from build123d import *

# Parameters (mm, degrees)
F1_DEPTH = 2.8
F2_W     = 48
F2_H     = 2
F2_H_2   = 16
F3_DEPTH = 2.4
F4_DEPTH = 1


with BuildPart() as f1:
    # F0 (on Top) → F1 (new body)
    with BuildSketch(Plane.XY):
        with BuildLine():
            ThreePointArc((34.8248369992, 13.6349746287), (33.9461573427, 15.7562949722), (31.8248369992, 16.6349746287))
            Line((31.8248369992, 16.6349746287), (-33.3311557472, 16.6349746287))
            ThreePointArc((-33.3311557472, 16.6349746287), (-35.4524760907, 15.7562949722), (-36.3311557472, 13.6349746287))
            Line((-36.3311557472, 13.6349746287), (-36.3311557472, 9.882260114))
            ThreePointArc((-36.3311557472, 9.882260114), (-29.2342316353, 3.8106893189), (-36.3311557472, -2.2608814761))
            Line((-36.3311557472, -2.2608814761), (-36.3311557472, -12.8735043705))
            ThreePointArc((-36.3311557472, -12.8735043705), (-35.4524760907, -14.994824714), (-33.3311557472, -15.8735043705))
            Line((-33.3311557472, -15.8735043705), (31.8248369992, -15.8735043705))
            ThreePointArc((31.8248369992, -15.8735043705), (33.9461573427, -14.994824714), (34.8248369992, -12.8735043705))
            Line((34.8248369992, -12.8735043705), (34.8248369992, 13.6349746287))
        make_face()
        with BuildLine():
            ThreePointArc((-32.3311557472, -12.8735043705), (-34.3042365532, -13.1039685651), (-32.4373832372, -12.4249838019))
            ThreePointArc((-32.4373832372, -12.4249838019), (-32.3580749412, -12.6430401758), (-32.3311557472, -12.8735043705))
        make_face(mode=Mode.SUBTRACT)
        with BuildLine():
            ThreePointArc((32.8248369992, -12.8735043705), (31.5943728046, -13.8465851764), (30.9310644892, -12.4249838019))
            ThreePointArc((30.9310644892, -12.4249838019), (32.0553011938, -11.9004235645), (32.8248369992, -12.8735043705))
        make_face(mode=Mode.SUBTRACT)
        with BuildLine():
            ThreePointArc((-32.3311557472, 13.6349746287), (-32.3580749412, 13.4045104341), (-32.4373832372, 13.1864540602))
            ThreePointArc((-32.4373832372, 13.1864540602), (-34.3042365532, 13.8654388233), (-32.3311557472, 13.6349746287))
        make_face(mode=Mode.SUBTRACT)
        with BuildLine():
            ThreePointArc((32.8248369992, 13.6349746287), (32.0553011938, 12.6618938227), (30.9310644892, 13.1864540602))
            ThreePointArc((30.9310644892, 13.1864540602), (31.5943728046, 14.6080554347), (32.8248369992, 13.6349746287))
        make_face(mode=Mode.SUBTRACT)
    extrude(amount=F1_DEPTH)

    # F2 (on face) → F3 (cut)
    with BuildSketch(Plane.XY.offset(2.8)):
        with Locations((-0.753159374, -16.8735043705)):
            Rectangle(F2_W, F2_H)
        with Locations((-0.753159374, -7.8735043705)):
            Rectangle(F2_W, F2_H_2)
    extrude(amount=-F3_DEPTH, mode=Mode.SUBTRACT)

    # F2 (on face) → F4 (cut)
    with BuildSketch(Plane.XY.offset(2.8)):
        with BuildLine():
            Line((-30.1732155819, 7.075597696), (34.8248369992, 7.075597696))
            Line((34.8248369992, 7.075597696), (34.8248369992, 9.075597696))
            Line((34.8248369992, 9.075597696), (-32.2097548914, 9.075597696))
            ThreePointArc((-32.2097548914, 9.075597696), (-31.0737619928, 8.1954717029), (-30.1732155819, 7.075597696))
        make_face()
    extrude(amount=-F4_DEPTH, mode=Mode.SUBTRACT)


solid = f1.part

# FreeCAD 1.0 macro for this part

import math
import FreeCAD as App
import Part
import Sketcher
Q = App.Units.Quantity


def add_polygon(sketch, points):
    """Adds a closed chain of lines whose ends are joined by coincident constraints."""
    first, n = sketch.GeometryCount, len(points)
    for a, b in zip(points, points[1:] + points[:1]):
        sketch.addGeometry(Part.LineSegment(App.Vector(*a, 0), App.Vector(*b, 0)), False)
    for i in range(n):
        sketch.addConstraint(Sketcher.Constraint("Coincident", first + i, 2, first + (i + 1) % n, 1))

doc = App.newDocument("Part")
body = doc.addObject("PartDesign::Body", "Body")

sketch1 = body.newObject("Sketcher::SketchObject", "Sketch")
sketch1.AttachmentSupport = (doc.getObject("XY_Plane"), [""])
sketch1.MapMode = "FlatFace"
sketch1.addGeometry([
    Part.ArcOfCircle(Part.Circle(App.Vector(31.82, 13.63, 0), App.Vector(0, 0, 1), 3), math.radians(0), math.radians(90)),
    Part.LineSegment(App.Vector(31.82, 16.63, 0), App.Vector(-33.33, 16.63, 0)),
    Part.ArcOfCircle(Part.Circle(App.Vector(-33.33, 13.63, 0), App.Vector(0, 0, 1), 3), math.radians(90), math.radians(180)),
    Part.LineSegment(App.Vector(-36.33, 13.63, 0), App.Vector(-36.33, 9.88, 0)),
    Part.ArcOfCircle(Part.Circle(App.Vector(-35.38, 3.81, 0), App.Vector(0, 0, 1), 6.15), math.radians(-99), math.radians(99)),
    Part.LineSegment(App.Vector(-36.33, -2.26, 0), App.Vector(-36.33, -12.87, 0)),
    Part.ArcOfCircle(Part.Circle(App.Vector(-33.33, -12.87, 0), App.Vector(0, 0, 1), 3), math.radians(180), math.radians(270)),
    Part.LineSegment(App.Vector(-33.33, -15.87, 0), App.Vector(31.82, -15.87, 0)),
    Part.ArcOfCircle(Part.Circle(App.Vector(31.82, -12.87, 0), App.Vector(0, 0, 1), 3), math.radians(-90), math.radians(0)),
    Part.LineSegment(App.Vector(34.82, -12.87, 0), App.Vector(34.82, 13.63, 0)),
    Part.ArcOfCircle(Part.Circle(App.Vector(-33.33, -12.87, 0), App.Vector(0, 0, 1), 1), math.radians(0), math.radians(27)),
    Part.ArcOfCircle(Part.Circle(App.Vector(-33.33, -12.87, 0), App.Vector(0, 0, 1), 1), math.radians(27), math.radians(360)),
    Part.ArcOfCircle(Part.Circle(App.Vector(31.82, -12.87, 0), App.Vector(0, 0, 1), 1), math.radians(0), math.radians(153)),
    Part.ArcOfCircle(Part.Circle(App.Vector(31.82, -12.87, 0), App.Vector(0, 0, 1), 1), math.radians(153), math.radians(360)),
    Part.ArcOfCircle(Part.Circle(App.Vector(-33.33, 13.63, 0), App.Vector(0, 0, 1), 1), math.radians(0), math.radians(333)),
    Part.ArcOfCircle(Part.Circle(App.Vector(-33.33, 13.63, 0), App.Vector(0, 0, 1), 1), math.radians(-27), math.radians(0)),
    Part.ArcOfCircle(Part.Circle(App.Vector(31.82, 13.63, 0), App.Vector(0, 0, 1), 1), math.radians(0), math.radians(207)),
    Part.ArcOfCircle(Part.Circle(App.Vector(31.82, 13.63, 0), App.Vector(0, 0, 1), 1), math.radians(-153), math.radians(0)),
], False)
sketch1.addConstraint([
    Sketcher.Constraint("Tangent", 0, 2, 1, 1),
    Sketcher.Constraint("Tangent", 1, 2, 2, 1),
    Sketcher.Constraint("Tangent", 2, 2, 3, 1),
    Sketcher.Constraint("Coincident", 3, 2, 4, 2),
    Sketcher.Constraint("Coincident", 4, 1, 5, 1),
    Sketcher.Constraint("Tangent", 5, 2, 6, 1),
    Sketcher.Constraint("Tangent", 6, 2, 7, 1),
    Sketcher.Constraint("Tangent", 7, 2, 8, 1),
    Sketcher.Constraint("Tangent", 8, 2, 9, 1),
    Sketcher.Constraint("Tangent", 9, 2, 0, 1),
    Sketcher.Constraint("Tangent", 10, 1, 11, 2),
    Sketcher.Constraint("Coincident", 11, 1, 10, 2),
    Sketcher.Constraint("Tangent", 12, 1, 13, 2),
    Sketcher.Constraint("Coincident", 13, 1, 12, 2),
    Sketcher.Constraint("Tangent", 14, 1, 15, 2),
    Sketcher.Constraint("Coincident", 15, 1, 14, 2),
    Sketcher.Constraint("Tangent", 16, 1, 17, 2),
    Sketcher.Constraint("Coincident", 17, 1, 16, 2),
    Sketcher.Constraint("Horizontal", 1),
    Sketcher.Constraint("Vertical", 3),
    Sketcher.Constraint("Vertical", 5),
    Sketcher.Constraint("Horizontal", 7),
    Sketcher.Constraint("Vertical", 9),
    Sketcher.Constraint("Coincident", 10, 3, 6, 3),
    Sketcher.Constraint("Coincident", 12, 3, 8, 3),
    Sketcher.Constraint("Coincident", 14, 3, 2, 3),
    Sketcher.Constraint("Coincident", 16, 3, 0, 3),
    Sketcher.Constraint("Equal", 0, 2),
    Sketcher.Constraint("Equal", 2, 6),
    Sketcher.Constraint("Equal", 6, 8),
    Sketcher.Constraint("Equal", 11, 12),
    Sketcher.Constraint("Equal", 13, 14),
    Sketcher.Constraint("Equal", 15, 16),
    Sketcher.Constraint("Horizontal", 8, 2, 10, 1),
    Sketcher.Constraint("Horizontal", 10, 1, 12, 1),
    Sketcher.Constraint("Horizontal", 11, 1, 13, 1),
    Sketcher.Constraint("Horizontal", 9, 2, 14, 1),
    Sketcher.Constraint("Horizontal", 14, 1, 16, 1),
    Sketcher.Constraint("Horizontal", 15, 1, 17, 1),
    Sketcher.Constraint("Vertical", 2, 3, 6, 3),
    Sketcher.Constraint("Vertical", 11, 1, 15, 1),
    Sketcher.Constraint("Radius", 0, Q("3 mm")),
    Sketcher.Constraint("Radius", 10, Q("1 mm")),
    Sketcher.Constraint("Radius", 4, Q("6.145642 mm")),
    Sketcher.Constraint("DistanceY", 9, 1, 9, 2, Q("26.508479 mm")),
    Sketcher.Constraint("DistanceX", 1, 2, 1, 1, Q("65.155993 mm")),
    Sketcher.Constraint("DistanceY", 3, 2, 3, 1, Q("3.752715 mm")),
    Sketcher.Constraint("DistanceY", 5, 2, 5, 1, Q("10.612623 mm")),
    Sketcher.Constraint("DistanceY", -1, 1, 4, 3, Q("3.810689 mm")),
    Sketcher.Constraint("DistanceY", 10, 1, 11, 1, Q("0.448521 mm")),
    Sketcher.Constraint("DistanceX", -1, 1, 0, 3, Q("31.824837 mm")),
])
pad1 = body.newObject("PartDesign::Pad", "Pad")
pad1.Profile = sketch1
pad1.Length = 2.8

sketch2 = body.newObject("Sketcher::SketchObject", "Sketch001")
sketch2.AttachmentSupport = (doc.getObject("XY_Plane"), [""])
sketch2.MapMode = "FlatFace"
sketch2.AttachmentOffset = App.Placement(App.Vector(0, 0, 2.8), App.Rotation())
add_polygon(sketch2, [(-25, -18), (23, -18), (23, 0), (-25, 0)])
sketch2.addConstraint([
    Sketcher.Constraint("Horizontal", 0),
    Sketcher.Constraint("Vertical", 1),
    Sketcher.Constraint("Horizontal", 2),
    Sketcher.Constraint("Vertical", 3),
    Sketcher.Constraint("DistanceX", 0, 1, 0, 2, Q("48 mm")),
    Sketcher.Constraint("DistanceY", 1, 1, 1, 2, Q("18 mm")),
    Sketcher.Constraint("DistanceX", -1, 1, 0, 2, Q("23.246841 mm")),
    Sketcher.Constraint("DistanceY", 0, 2, -1, 1, Q("17.873504 mm")),
])
pocket1 = body.newObject("PartDesign::Pocket", "Pocket")
pocket1.Profile = sketch2
pocket1.Length = 2.4

sketch3 = body.newObject("Sketcher::SketchObject", "Sketch002")
sketch3.AttachmentSupport = (doc.getObject("XY_Plane"), [""])
sketch3.MapMode = "FlatFace"
sketch3.AttachmentOffset = App.Placement(App.Vector(0, 0, 2.8), App.Rotation())
sketch3.addGeometry([
    Part.LineSegment(App.Vector(-30.2, 7.1, 0), App.Vector(34.8, 7.1, 0)),
    Part.LineSegment(App.Vector(34.8, 7.1, 0), App.Vector(34.8, 9.1, 0)),
    Part.LineSegment(App.Vector(34.8, 9.1, 0), App.Vector(-32.2, 9.1, 0)),
    Part.ArcOfCircle(Part.Circle(App.Vector(-35.4, 3.8, 0), App.Vector(0, 0, 1), 6.1), math.radians(32), math.radians(59)),
], False)
sketch3.addConstraint([
    Sketcher.Constraint("Coincident", 0, 2, 1, 1),
    Sketcher.Constraint("Coincident", 1, 2, 2, 1),
    Sketcher.Constraint("Coincident", 2, 2, 3, 2),
    Sketcher.Constraint("Coincident", 3, 1, 0, 1),
    Sketcher.Constraint("Horizontal", 0),
    Sketcher.Constraint("Vertical", 1),
    Sketcher.Constraint("Horizontal", 2),
    Sketcher.Constraint("DistanceY", 1, 1, 1, 2, Q("2 mm")),
    Sketcher.Constraint("Radius", 3, Q("6.145642 mm")),
    Sketcher.Constraint("DistanceX", 2, 2, 2, 1, Q("67.034592 mm")),
    Sketcher.Constraint("DistanceX", 0, 1, 0, 2, Q("64.998053 mm")),
    Sketcher.Constraint("DistanceY", -1, 1, 3, 3, Q("3.810689 mm")),
    Sketcher.Constraint("DistanceX", 3, 3, -1, 1, Q("35.379873 mm")),
])
pocket2 = body.newObject("PartDesign::Pocket", "Pocket001")
pocket2.Profile = sketch3
pocket2.Length = 1

doc.recompute()
